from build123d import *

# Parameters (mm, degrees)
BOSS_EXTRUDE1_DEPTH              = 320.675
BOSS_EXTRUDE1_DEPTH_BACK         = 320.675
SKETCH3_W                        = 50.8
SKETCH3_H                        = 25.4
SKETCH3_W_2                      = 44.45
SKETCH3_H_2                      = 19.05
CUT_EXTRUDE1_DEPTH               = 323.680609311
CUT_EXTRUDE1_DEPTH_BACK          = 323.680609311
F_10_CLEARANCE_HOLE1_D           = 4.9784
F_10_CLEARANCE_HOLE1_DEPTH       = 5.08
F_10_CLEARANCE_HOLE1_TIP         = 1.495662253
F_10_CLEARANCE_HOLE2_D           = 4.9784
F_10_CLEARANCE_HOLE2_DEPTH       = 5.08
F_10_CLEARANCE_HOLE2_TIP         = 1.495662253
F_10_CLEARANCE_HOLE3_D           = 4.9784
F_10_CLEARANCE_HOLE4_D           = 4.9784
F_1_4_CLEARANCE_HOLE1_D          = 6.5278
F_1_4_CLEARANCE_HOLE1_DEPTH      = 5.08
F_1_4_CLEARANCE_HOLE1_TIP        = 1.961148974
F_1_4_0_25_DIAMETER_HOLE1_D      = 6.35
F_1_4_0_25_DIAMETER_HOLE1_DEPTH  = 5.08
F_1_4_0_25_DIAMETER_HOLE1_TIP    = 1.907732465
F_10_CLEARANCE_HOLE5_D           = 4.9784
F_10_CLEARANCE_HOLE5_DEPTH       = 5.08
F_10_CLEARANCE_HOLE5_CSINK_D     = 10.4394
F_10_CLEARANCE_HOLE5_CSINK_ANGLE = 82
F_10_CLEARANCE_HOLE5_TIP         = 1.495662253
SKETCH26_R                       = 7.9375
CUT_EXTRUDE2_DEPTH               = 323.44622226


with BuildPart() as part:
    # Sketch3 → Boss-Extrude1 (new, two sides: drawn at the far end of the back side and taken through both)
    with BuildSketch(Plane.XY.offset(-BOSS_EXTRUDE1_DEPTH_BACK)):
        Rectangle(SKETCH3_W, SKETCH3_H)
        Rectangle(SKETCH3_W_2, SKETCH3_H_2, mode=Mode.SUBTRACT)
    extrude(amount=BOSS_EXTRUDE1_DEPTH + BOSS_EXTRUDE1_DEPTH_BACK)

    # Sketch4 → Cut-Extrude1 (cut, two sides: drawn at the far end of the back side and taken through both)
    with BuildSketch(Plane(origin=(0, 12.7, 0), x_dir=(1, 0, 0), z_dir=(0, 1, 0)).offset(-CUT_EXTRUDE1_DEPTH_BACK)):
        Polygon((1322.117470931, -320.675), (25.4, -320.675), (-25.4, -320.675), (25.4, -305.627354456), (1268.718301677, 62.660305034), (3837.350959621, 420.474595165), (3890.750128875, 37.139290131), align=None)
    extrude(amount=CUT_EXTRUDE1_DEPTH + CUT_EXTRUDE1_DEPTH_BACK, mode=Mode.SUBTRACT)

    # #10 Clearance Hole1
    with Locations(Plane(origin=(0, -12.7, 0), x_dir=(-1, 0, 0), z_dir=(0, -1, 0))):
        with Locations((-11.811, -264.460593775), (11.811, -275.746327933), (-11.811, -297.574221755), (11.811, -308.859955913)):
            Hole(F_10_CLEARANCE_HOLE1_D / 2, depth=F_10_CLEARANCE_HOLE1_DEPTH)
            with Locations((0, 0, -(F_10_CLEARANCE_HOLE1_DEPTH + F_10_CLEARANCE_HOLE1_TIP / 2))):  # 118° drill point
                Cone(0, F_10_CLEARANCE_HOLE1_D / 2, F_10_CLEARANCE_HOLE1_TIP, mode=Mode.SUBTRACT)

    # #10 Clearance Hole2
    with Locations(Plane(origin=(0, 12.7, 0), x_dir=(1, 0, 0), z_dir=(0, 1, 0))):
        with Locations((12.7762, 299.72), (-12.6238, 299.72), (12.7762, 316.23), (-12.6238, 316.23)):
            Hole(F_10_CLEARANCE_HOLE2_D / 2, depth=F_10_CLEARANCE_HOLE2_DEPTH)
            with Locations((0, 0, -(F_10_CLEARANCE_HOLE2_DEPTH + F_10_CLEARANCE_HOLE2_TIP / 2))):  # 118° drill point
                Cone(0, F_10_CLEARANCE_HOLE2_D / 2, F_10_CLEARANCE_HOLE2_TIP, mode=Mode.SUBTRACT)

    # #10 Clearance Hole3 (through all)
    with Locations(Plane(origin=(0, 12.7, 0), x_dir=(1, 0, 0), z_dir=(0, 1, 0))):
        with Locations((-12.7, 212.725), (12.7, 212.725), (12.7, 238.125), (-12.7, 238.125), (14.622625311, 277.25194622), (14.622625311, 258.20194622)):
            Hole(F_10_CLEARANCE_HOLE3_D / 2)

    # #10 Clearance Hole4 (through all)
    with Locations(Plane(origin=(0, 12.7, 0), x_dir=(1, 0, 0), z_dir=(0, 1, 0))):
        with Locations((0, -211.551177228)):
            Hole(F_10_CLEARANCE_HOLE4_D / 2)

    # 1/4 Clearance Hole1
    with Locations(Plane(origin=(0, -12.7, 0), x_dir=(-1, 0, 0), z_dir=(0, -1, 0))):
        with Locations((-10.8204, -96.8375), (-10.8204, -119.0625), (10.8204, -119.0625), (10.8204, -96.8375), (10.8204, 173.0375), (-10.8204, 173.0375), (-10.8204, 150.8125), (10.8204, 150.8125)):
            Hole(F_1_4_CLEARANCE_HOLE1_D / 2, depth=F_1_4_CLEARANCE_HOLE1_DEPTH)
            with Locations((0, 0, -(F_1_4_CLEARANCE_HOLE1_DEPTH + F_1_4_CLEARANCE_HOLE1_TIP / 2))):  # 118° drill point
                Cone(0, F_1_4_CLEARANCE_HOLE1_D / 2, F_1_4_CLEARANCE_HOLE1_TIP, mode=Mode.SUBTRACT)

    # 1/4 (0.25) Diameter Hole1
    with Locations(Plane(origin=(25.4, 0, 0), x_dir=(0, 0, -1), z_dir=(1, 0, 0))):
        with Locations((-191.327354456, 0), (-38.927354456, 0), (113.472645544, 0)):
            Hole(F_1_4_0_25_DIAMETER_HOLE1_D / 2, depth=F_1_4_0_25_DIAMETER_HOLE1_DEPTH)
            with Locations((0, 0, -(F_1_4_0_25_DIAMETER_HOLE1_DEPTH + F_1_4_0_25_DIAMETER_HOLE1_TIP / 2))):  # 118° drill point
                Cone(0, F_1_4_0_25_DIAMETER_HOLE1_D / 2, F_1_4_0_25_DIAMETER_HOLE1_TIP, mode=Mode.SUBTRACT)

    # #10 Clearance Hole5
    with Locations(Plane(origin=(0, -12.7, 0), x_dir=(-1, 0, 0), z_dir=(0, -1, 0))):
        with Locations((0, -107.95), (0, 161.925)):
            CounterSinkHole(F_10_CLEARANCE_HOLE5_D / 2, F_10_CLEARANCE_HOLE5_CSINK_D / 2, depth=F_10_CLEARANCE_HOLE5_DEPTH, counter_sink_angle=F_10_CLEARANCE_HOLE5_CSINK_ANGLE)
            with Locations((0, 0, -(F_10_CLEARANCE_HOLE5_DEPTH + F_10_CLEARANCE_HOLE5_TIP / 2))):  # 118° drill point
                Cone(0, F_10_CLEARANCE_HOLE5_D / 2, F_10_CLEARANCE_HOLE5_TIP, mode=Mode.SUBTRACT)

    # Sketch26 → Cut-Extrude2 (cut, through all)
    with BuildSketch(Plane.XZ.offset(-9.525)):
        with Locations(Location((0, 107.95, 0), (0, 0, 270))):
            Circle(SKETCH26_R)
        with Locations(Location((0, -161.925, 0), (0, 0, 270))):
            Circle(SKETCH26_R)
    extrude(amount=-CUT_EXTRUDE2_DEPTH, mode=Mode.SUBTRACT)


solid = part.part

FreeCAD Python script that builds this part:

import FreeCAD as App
import Part
import Sketcher
Q = App.Units.Quantity

doc = App.newDocument("Part")
body = doc.addObject("PartDesign::Body", "Body")

sketch1 = body.newObject("Sketcher::SketchObject", "Sketch")
sketch1.AttachmentSupport = (doc.getObject("XY_Plane"), [""])
sketch1.MapMode = "FlatFace"
sketch1.addGeometry([
    Part.LineSegment(App.Vector(-25, 13, 0), App.Vector(-25, -13, 0)),
    Part.LineSegment(App.Vector(-25, -13, 0), App.Vector(25, -13, 0)),
    Part.LineSegment(App.Vector(25, -13, 0), App.Vector(25, 13, 0)),
    Part.LineSegment(App.Vector(25, 13, 0), App.Vector(-25, 13, 0)),
    Part.LineSegment(App.Vector(22, -10, 0), App.Vector(-22, -10, 0)),
    Part.LineSegment(App.Vector(-22, -10, 0), App.Vector(-22, 10, 0)),
    Part.LineSegment(App.Vector(-22, 10, 0), App.Vector(22, 10, 0)),
    Part.LineSegment(App.Vector(22, 10, 0), App.Vector(22, -10, 0)),
], False)
sketch1.addConstraint([
    Sketcher.Constraint("Coincident", 0, 2, 1, 1),
    Sketcher.Constraint("Coincident", 1, 2, 2, 1),
    Sketcher.Constraint("Coincident", 2, 2, 3, 1),
    Sketcher.Constraint("Coincident", 3, 2, 0, 1),
    Sketcher.Constraint("Coincident", 4, 2, 5, 1),
    Sketcher.Constraint("Coincident", 5, 2, 6, 1),
    Sketcher.Constraint("Coincident", 6, 2, 7, 1),
    Sketcher.Constraint("Coincident", 7, 2, 4, 1),
    Sketcher.Constraint("Vertical", 0),
    Sketcher.Constraint("Horizontal", 1),
    Sketcher.Constraint("Vertical", 2),
    Sketcher.Constraint("Horizontal", 3),
    Sketcher.Constraint("Horizontal", 4),
    Sketcher.Constraint("Vertical", 5),
    Sketcher.Constraint("Horizontal", 6),
    Sketcher.Constraint("Vertical", 7),
    Sketcher.Constraint("Symmetric", 0, 2, 2, 2, -1, 1),
    Sketcher.Constraint("Symmetric", 4, 2, 6, 2, -1, 1),
    Sketcher.Constraint("DistanceX", 1, 1, 1, 2, Q("2 in")),
    Sketcher.Constraint("DistanceY", 0, 2, 0, 1, Q("1 in")),
    Sketcher.Constraint("DistanceX", 4, 2, 4, 1, Q("1.75 in")),
    Sketcher.Constraint("DistanceY", 5, 1, 5, 2, Q("0.75 in")),
])
pad1 = body.newObject("PartDesign::Pad", "Pad")
pad1.Profile = sketch1
pad1.Type = "TwoLengths"
pad1.Length = Q("12.625 in")
pad1.Length2 = Q("12.625 in")

sketch2 = body.newObject("Sketcher::SketchObject", "Sketch001")
sketch2.AttachmentSupport = (doc.getObject("XZ_Plane"), [""])
sketch2.MapMode = "FlatFace"
sketch2.AttachmentOffset = App.Placement(App.Vector(0, 0, -0.5 * 25.4), App.Rotation())
sketch2.addGeometry([
    Part.LineSegment(App.Vector(-25, 321, 0), App.Vector(1322, 321, 0)),
    Part.LineSegment(App.Vector(1322, 321, 0), App.Vector(3891, -37, 0)),
    Part.LineSegment(App.Vector(3891, -37, 0), App.Vector(3837, -420, 0)),
    Part.LineSegment(App.Vector(3837, -420, 0), App.Vector(1269, -63, 0)),
    Part.LineSegment(App.Vector(1269, -63, 0), App.Vector(25, 306, 0)),
    Part.LineSegment(App.Vector(25, 306, 0), App.Vector(-25, 321, 0)),
], False)
sketch2.addConstraint([
    Sketcher.Constraint("Coincident", 0, 2, 1, 1),
    Sketcher.Constraint("Coincident", 1, 2, 2, 1),
    Sketcher.Constraint("Coincident", 2, 2, 3, 1),
    Sketcher.Constraint("Coincident", 3, 2, 4, 1),
    Sketcher.Constraint("Coincident", 4, 2, 5, 1),
    Sketcher.Constraint("Coincident", 5, 2, 0, 1),
    Sketcher.Constraint("Horizontal", 0),
    Sketcher.Constraint("Perpendicular", 1, 2),
    Sketcher.Constraint("Perpendicular", 2, 3),
    Sketcher.Constraint("Parallel", 4, 5),
    Sketcher.Constraint("Equal", 1, 3),
    Sketcher.Constraint("DistanceX", -1, 1, 4, 2, Q("1 in")),
    Sketcher.Constraint("DistanceX", 5, 2, -1, 1, Q("1 in")),
    Sketcher.Constraint("Angle", 4, Q("163.5 deg")),
    Sketcher.Constraint("DistanceY", -1, 1, 0, 2, Q("12.625 in")),
    Sketcher.Constraint("DistanceX", 0, 1, 0, 2, Q("1347.517471 mm")),
    Sketcher.Constraint("DistanceX", -1, 1, 3, 2, Q("1268.718302 mm")),
    Sketcher.Constraint("Distance", 1, Q("2593.434942 mm")),
])
pocket1 = body.newObject("PartDesign::Pocket", "Pocket")
pocket1.Profile = sketch2
pocket1.Type = "ThroughAll"
pocket1.Midplane = True

sketch3 = body.newObject("Sketcher::SketchObject", "Sketch002")
sketch3.AttachmentSupport = (doc.getObject("XZ_Plane"), [""])
sketch3.MapMode = "FlatFace"
sketch3.AttachmentOffset = App.Placement(App.Vector(0, 0, 0.5 * 25.4), App.Rotation())
sketch3.addGeometry([
    Part.Circle(App.Vector(11.8, 264.5, 0), App.Vector(0, 0, 1), 2.5),
    Part.Circle(App.Vector(-11.8, 275.7, 0), App.Vector(0, 0, 1), 2.5),
    Part.Circle(App.Vector(11.8, 297.6, 0), App.Vector(0, 0, 1), 2.5),
    Part.Circle(App.Vector(-11.8, 308.9, 0), App.Vector(0, 0, 1), 2.5),
], False)
sketch3.addConstraint([
    Sketcher.Constraint("Equal", 0, 1),
    Sketcher.Constraint("Equal", 1, 2),
    Sketcher.Constraint("Equal", 2, 3),
    Sketcher.Constraint("Vertical", 0, 3, 2, 3),
    Sketcher.Constraint("Vertical", 1, 3, 3, 3),
    Sketcher.Constraint("Diameter", 0, Q("0.196 in")),
    Sketcher.Constraint("DistanceX", 1, 3, 0, 3, Q("0.93 in")),
    Sketcher.Constraint("DistanceX", -1, 1, 0, 3, Q("0.465 in")),
    Sketcher.Constraint("DistanceY", -1, 1, 2, 3, Q("297.574222 mm")),
    Sketcher.Constraint("DistanceY", -1, 1, 0, 3, Q("264.460594 mm")),
    Sketcher.Constraint("DistanceY", -1, 1, 1, 3, Q("275.746328 mm")),
    Sketcher.Constraint("DistanceY", -1, 1, 3, 3, Q("308.859956 mm")),
])
doc.recompute()
hole = body.newObject("PartDesign::Hole", "Hole")
hole.Profile = sketch3
hole.ThreadType = "None"
hole.Diameter = Q("0.196 in")
hole.DepthType = "Dimension"
hole.Depth = Q("0.2 in")
hole.DrillPoint = "Angled"
hole.DrillPointAngle = 118

sketch4 = body.newObject("Sketcher::SketchObject", "Sketch003")
sketch4.AttachmentSupport = (doc.getObject("XZ_Plane"), [""])
sketch4.MapMode = "FlatFace"
sketch4.AttachmentOffset = App.Placement(App.Vector(0, 0, -0.5 * 25.4), App.Rotation())
sketch4.addGeometry([
    Part.Circle(App.Vector(12.8, -299.7, 0), App.Vector(0, 0, 1), 2.5),
    Part.Circle(App.Vector(-12.6, -299.7, 0), App.Vector(0, 0, 1), 2.5),
    Part.Circle(App.Vector(12.8, -316.2, 0), App.Vector(0, 0, 1), 2.5),
    Part.Circle(App.Vector(-12.6, -316.2, 0), App.Vector(0, 0, 1), 2.5),
], False)
sketch4.addConstraint([
    Sketcher.Constraint("Equal", 0, 1),
    Sketcher.Constraint("Equal", 1, 2),
    Sketcher.Constraint("Equal", 2, 3),
    Sketcher.Constraint("Horizontal", 0, 3, 1, 3),
    Sketcher.Constraint("Horizontal", 2, 3, 3, 3),
    Sketcher.Constraint("Vertical", 0, 3, 2, 3),
    Sketcher.Constraint("Vertical", 1, 3, 3, 3),
    Sketcher.Constraint("Diameter", 0, Q("0.196 in")),
    Sketcher.Constraint("DistanceX", 1, 3, 0, 3, Q("1 in")),
    Sketcher.Constraint("DistanceY", 0, 3, -1, 1, Q("11.8 in")),
    Sketcher.Constraint("DistanceY", 2, 3, -1, 1, Q("12.45 in")),
    Sketcher.Constraint("DistanceX", -1, 1, 0, 3, Q("0.503 in")),
])
doc.recompute()
hole2 = body.newObject("PartDesign::Hole", "Hole001")
hole2.Profile = sketch4
hole2.ThreadType = "None"
hole2.Diameter = Q("0.196 in")
hole2.DepthType = "Dimension"
hole2.Depth = Q("0.2 in")
hole2.DrillPoint = "Angled"
hole2.DrillPointAngle = 118
hole2.Reversed = True

sketch5 = body.newObject("Sketcher::SketchObject", "Sketch004")
sketch5.AttachmentSupport = (doc.getObject("XZ_Plane"), [""])
sketch5.MapMode = "FlatFace"
sketch5.AttachmentOffset = App.Placement(App.Vector(0, 0, -0.5 * 25.4), App.Rotation())
sketch5.addGeometry([
    Part.Circle(App.Vector(-12.7, -212.7, 0), App.Vector(0, 0, 1), 2.5),
    Part.Circle(App.Vector(12.7, -212.7, 0), App.Vector(0, 0, 1), 2.5),
    Part.Circle(App.Vector(12.7, -238.1, 0), App.Vector(0, 0, 1), 2.5),
    Part.Circle(App.Vector(-12.7, -238.1, 0), App.Vector(0, 0, 1), 2.5),
    Part.Circle(App.Vector(14.6, -277.3, 0), App.Vector(0, 0, 1), 2.5),
    Part.Circle(App.Vector(14.6, -258.2, 0), App.Vector(0, 0, 1), 2.5),
], False)
sketch5.addConstraint([
    Sketcher.Constraint("Equal", 0, 1),
    Sketcher.Constraint("Equal", 1, 2),
    Sketcher.Constraint("Equal", 2, 3),
    Sketcher.Constraint("Equal", 3, 4),
    Sketcher.Constraint("Equal", 4, 5),
    Sketcher.Constraint("Symmetric", 0, 3, 1, 3, -2),
    Sketcher.Constraint("Symmetric", 2, 3, 3, 3, -2),
    Sketcher.Constraint("Vertical", 1, 3, 2, 3),
    Sketcher.Constraint("Vertical", 4, 3, 5, 3),
    Sketcher.Constraint("Diameter", 0, Q("0.196 in")),
    Sketcher.Constraint("DistanceX", 0, 3, 1, 3, Q("1 in")),
    Sketcher.Constraint("DistanceY", 2, 3, 1, 3, Q("1 in")),
    Sketcher.Constraint("DistanceY", 4, 3, 5, 3, Q("0.75 in")),
    Sketcher.Constraint("DistanceY", 0, 3, -1, 1, Q("8.375 in")),
    Sketcher.Constraint("DistanceX", -1, 1, 4, 3, Q("14.622625 mm")),
    Sketcher.Constraint("DistanceY", 4, 3, -1, 1, Q("277.251946 mm")),
])
doc.recompute()
hole3 = body.newObject("PartDesign::Hole", "Hole002")
hole3.Profile = sketch5
hole3.ThreadType = "None"
hole3.Diameter = Q("0.196 in")
hole3.DepthType = "ThroughAll"
hole3.Reversed = True

sketch6 = body.newObject("Sketcher::SketchObject", "Sketch005")
sketch6.AttachmentSupport = (doc.getObject("XZ_Plane"), [""])
sketch6.MapMode = "FlatFace"
sketch6.AttachmentOffset = App.Placement(App.Vector(0, 0, -0.5 * 25.4), App.Rotation())
sketch6.addGeometry(Part.Circle(App.Vector(0, 211.6, 0), App.Vector(0, 0, 1), 2.5), False)
sketch6.addConstraint([
    Sketcher.Constraint("PointOnObject", 0, 3, -2),
    Sketcher.Constraint("Diameter", 0, Q("0.196 in")),
    Sketcher.Constraint("DistanceY", -1, 1, 0, 3, Q("211.551177 mm")),
])
doc.recompute()
hole4 = body.newObject("PartDesign::Hole", "Hole003")
hole4.Profile = sketch6
hole4.ThreadType = "None"
hole4.Diameter = Q("0.196 in")
hole4.DepthType = "ThroughAll"
hole4.Reversed = True

sketch7 = body.newObject("Sketcher::SketchObject", "Sketch006")
sketch7.AttachmentSupport = (doc.getObject("XZ_Plane"), [""])
sketch7.MapMode = "FlatFace"
sketch7.AttachmentOffset = App.Placement(App.Vector(0, 0, 0.5 * 25.4), App.Rotation())
sketch7.addGeometry([
    Part.Circle(App.Vector(10.8, 96.8, 0), App.Vector(0, 0, 1), 3.3),
    Part.Circle(App.Vector(10.8, 119.1, 0), App.Vector(0, 0, 1), 3.3),
    Part.Circle(App.Vector(-10.8, 119.1, 0), App.Vector(0, 0, 1), 3.3),
    Part.Circle(App.Vector(-10.8, 96.8, 0), App.Vector(0, 0, 1), 3.3),
    Part.Circle(App.Vector(-10.8, -173, 0), App.Vector(0, 0, 1), 3.3),
    Part.Circle(App.Vector(10.8, -173, 0), App.Vector(0, 0, 1), 3.3),
    Part.Circle(App.Vector(10.8, -150.8, 0), App.Vector(0, 0, 1), 3.3),
    Part.Circle(App.Vector(-10.8, -150.8, 0), App.Vector(0, 0, 1), 3.3),
], False)
sketch7.addConstraint([
    Sketcher.Constraint("Equal", 0, 1),
    Sketcher.Constraint("Equal", 1, 2),
    Sketcher.Constraint("Equal", 2, 3),
    Sketcher.Constraint("Equal", 3, 4),
    Sketcher.Constraint("Equal", 4, 5),
    Sketcher.Constraint("Equal", 5, 6),
    Sketcher.Constraint("Equal", 6, 7),
    Sketcher.Constraint("Symmetric", 1, 3, 2, 3, -2),
    Sketcher.Constraint("Symmetric", 0, 3, 3, 3, -2),
    Sketcher.Constraint("Symmetric", 4, 3, 5, 3, -2),
    Sketcher.Constraint("Symmetric", 6, 3, 7, 3, -2),
    Sketcher.Constraint("Vertical", 0, 3, 1, 3),
    Sketcher.Constraint("Vertical", 3, 3, 4, 3),
    Sketcher.Constraint("Vertical", 5, 3, 6, 3),
    Sketcher.Constraint("Diameter", 0, Q("0.257 in")),
    Sketcher.Constraint("DistanceY", 4, 3, 2, 3, Q("11.5 in")),
    Sketcher.Constraint("DistanceY", 6, 3, 0, 3, Q("9.75 in")),
    Sketcher.Constraint("DistanceX", -1, 1, 0, 3, Q("0.426 in")),
    Sketcher.Constraint("DistanceY", -1, 1, 0, 3, Q("3.8125 in")),
    Sketcher.Constraint("DistanceY", -1, 1, 1, 3, Q("4.6875 in")),
])
doc.recompute()
hole5 = body.newObject("PartDesign::Hole", "Hole004")
hole5.Profile = sketch7
hole5.ThreadType = "None"
hole5.Diameter = Q("0.257 in")
hole5.DepthType = "Dimension"
hole5.Depth = Q("0.2 in")
hole5.DrillPoint = "Angled"
hole5.DrillPointAngle = 118

sketch8 = body.newObject("Sketcher::SketchObject", "Sketch007")
sketch8.AttachmentSupport = (doc.getObject("YZ_Plane"), [""])
sketch8.MapMode = "FlatFace"
sketch8.AttachmentOffset = App.Placement(App.Vector(0, 0, 1 * 25.4), App.Rotation())
sketch8.addGeometry([
    Part.Circle(App.Vector(0, 191.3, 0), App.Vector(0, 0, 1), 3.2),
    Part.Circle(App.Vector(0, 38.9, 0), App.Vector(0, 0, 1), 3.2),
    Part.Circle(App.Vector(0, -113.5, 0), App.Vector(0, 0, 1), 3.2),
], False)
sketch8.addConstraint([
    Sketcher.Constraint("Equal", 0, 1),
    Sketcher.Constraint("Equal", 1, 2),
    Sketcher.Constraint("PointOnObject", 0, 3, -2),
    Sketcher.Constraint("PointOnObject", 1, 3, -2),
    Sketcher.Constraint("PointOnObject", 2, 3, -2),
    Sketcher.Constraint("Diameter", 0, Q("0.25 in")),
    Sketcher.Constraint("DistanceY", 1, 3, 0, 3, Q("6 in")),
    Sketcher.Constraint("DistanceY", 2, 3, 1, 3, Q("6 in")),
    Sketcher.Constraint("DistanceY", -1, 1, 0, 3, Q("191.327354 mm")),
])
doc.recompute()
hole6 = body.newObject("PartDesign::Hole", "Hole005")
hole6.Profile = sketch8
hole6.ThreadType = "None"
hole6.Diameter = Q("0.25 in")
hole6.DepthType = "Dimension"
hole6.Depth = Q("0.2 in")
hole6.DrillPoint = "Angled"
hole6.DrillPointAngle = 118

sketch9 = body.newObject("Sketcher::SketchObject", "Sketch008")
sketch9.AttachmentSupport = (doc.getObject("XZ_Plane"), [""])
sketch9.MapMode = "FlatFace"
sketch9.AttachmentOffset = App.Placement(App.Vector(0, 0, 0.5 * 25.4), App.Rotation())
sketch9.addGeometry([
    Part.Circle(App.Vector(0, 108, 0), App.Vector(0, 0, 1), 2.5),
    Part.Circle(App.Vector(0, -161.9, 0), App.Vector(0, 0, 1), 2.5),
], False)
sketch9.addConstraint([
    Sketcher.Constraint("Equal", 0, 1),
    Sketcher.Constraint("PointOnObject", 0, 3, -2),
    Sketcher.Constraint("PointOnObject", 1, 3, -2),
    Sketcher.Constraint("Diameter", 0, Q("0.196 in")),
    Sketcher.Constraint("DistanceY", -1, 1, 0, 3, Q("4.25 in")),
    Sketcher.Constraint("DistanceY", 1, 3, -1, 1, Q("6.375 in")),
])
doc.recompute()
hole7 = body.newObject("PartDesign::Hole", "Hole006")
hole7.Profile = sketch9
hole7.ThreadType = "None"
hole7.Diameter = Q("0.196 in")
hole7.DepthType = "Dimension"
hole7.Depth = Q("0.2 in")
hole7.DrillPoint = "Angled"
hole7.DrillPointAngle = 118
hole7.HoleCutType = "Countersink"
hole7.HoleCutDiameter = Q("0.411 in")
hole7.HoleCutCountersinkAngle = 82

sketch10 = body.newObject("Sketcher::SketchObject", "Sketch009")
sketch10.AttachmentSupport = (doc.getObject("XZ_Plane"), [""])
sketch10.MapMode = "FlatFace"
sketch10.AttachmentOffset = App.Placement(App.Vector(0, 0, -0.375 * 25.4), App.Rotation())
sketch10.addGeometry([
    Part.Circle(App.Vector(0, 108, 0), App.Vector(0, 0, 1), 8),
    Part.Circle(App.Vector(0, -162, 0), App.Vector(0, 0, 1), 8),
], False)
sketch10.addConstraint([
    Sketcher.Constraint("Equal", 0, 1),
    Sketcher.Constraint("PointOnObject", 0, 3, -2),
    Sketcher.Constraint("PointOnObject", 1, 3, -2),
    Sketcher.Constraint("Diameter", 0, Q("0.625 in")),
    Sketcher.Constraint("DistanceY", -1, 1, 0, 3, Q("4.25 in")),
    Sketcher.Constraint("DistanceY", 1, 3, -1, 1, Q("6.375 in")),
])
pocket2 = body.newObject("PartDesign::Pocket", "Pocket001")
pocket2.Profile = sketch10
pocket2.Type = "ThroughAll"

doc.recompute()
